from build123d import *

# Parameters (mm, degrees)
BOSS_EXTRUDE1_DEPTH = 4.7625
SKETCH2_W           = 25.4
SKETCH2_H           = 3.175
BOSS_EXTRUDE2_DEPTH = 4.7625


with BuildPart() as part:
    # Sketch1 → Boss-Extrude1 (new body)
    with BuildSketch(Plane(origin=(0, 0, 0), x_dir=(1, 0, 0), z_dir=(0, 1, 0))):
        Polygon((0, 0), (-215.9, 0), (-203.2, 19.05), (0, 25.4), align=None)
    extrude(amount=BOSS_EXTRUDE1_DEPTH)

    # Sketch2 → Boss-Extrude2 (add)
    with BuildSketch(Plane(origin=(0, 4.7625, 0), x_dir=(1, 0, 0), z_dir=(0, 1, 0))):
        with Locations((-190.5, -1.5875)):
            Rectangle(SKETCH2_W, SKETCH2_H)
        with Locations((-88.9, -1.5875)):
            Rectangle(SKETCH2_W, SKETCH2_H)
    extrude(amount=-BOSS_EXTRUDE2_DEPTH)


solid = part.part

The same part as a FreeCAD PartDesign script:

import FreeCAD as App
import Part
import Sketcher
Q = App.Units.Quantity


def add_polygon(sketch, points):
    """Adds a closed chain of lines whose ends are joined by coincident constraints."""
    first, n = sketch.GeometryCount, len(points)
    for a, b in zip(points, points[1:] + points[:1]):
        sketch.addGeometry(Part.LineSegment(App.Vector(*a, 0), App.Vector(*b, 0)), False)
    for i in range(n):
        sketch.addConstraint(Sketcher.Constraint("Coincident", first + i, 2, first + (i + 1) % n, 1))

doc = App.newDocument("Part")
params = doc.addObject("Spreadsheet::Sheet", "Params")
for row, (alias, value) in enumerate([
    ("sketch1_height", "1 in"),
    ("sketch1_width", "8.5 in"),
    ("pad1_length", "0.1875 in"),
    ("sketch2_width", "1 in"),
    ("sketch2_height", "0.125 in"),
    ("pad2_length", "0.1875 in"),
], start=1):
    params.set(f"A{row}", alias)
    params.set(f"B{row}", "=" + value)
    params.setAlias(f"B{row}", alias)

body = doc.addObject("PartDesign::Body", "Body")

sketch1 = body.newObject("Sketcher::SketchObject", "Sketch")
sketch1.AttachmentSupport = (doc.getObject("XZ_Plane"), [""])
sketch1.MapMode = "FlatFace"
add_polygon(sketch1, [(-216, 0), (0, 0), (0, -25), (-203, -19)])
sketch1.addConstraint(Sketcher.Constraint("Horizontal", 0))
sketch1.addConstraint(Sketcher.Constraint("Vertical", 1))
sketch1.addConstraint(Sketcher.Constraint("Coincident", 0, 2, -1, 1))
sketch1.addConstraint(Sketcher.Constraint("DistanceY", 1, 2, 1, 1, Q("1 in")))
sketch1.addConstraint(Sketcher.Constraint("DistanceX", 0, 1, 0, 2, Q("8.5 in")))
sketch1.addConstraint(Sketcher.Constraint("DistanceX", 2, 2, -1, 1, Q("8 in")))
sketch1.addConstraint(Sketcher.Constraint("DistanceY", 2, 2, -1, 1, Q("0.75 in")))
sketch1.setExpression("Constraints[7]", "Params.sketch1_height")
sketch1.setExpression("Constraints[8]", "Params.sketch1_width")
pad1 = body.newObject("PartDesign::Pad", "Pad")
pad1.Profile = sketch1
pad1.setExpression("Length", "Params.pad1_length")
pad1.Reversed = True

sketch2 = body.newObject("Sketcher::SketchObject", "Sketch001")
sketch2.AttachmentSupport = (doc.getObject("XZ_Plane"), [""])
sketch2.MapMode = "FlatFace"
sketch2.AttachmentOffset = App.Placement(App.Vector(0, 0, -0.1875 * 25.4), App.Rotation())
add_polygon(sketch2, [(-203.2, 0), (-203.2, 3.2), (-177.8, 3.2), (-177.8, 0)])
add_polygon(sketch2, [(-101.6, 0), (-101.6, 3.2), (-76.2, 3.2), (-76.2, 0)])
sketch2.addConstraint(Sketcher.Constraint("Vertical", 0))
sketch2.addConstraint(Sketcher.Constraint("Horizontal", 1))
sketch2.addConstraint(Sketcher.Constraint("Vertical", 2))
sketch2.addConstraint(Sketcher.Constraint("Horizontal", 3))
sketch2.addConstraint(Sketcher.Constraint("Vertical", 4))
sketch2.addConstraint(Sketcher.Constraint("Horizontal", 5))
sketch2.addConstraint(Sketcher.Constraint("Vertical", 6))
sketch2.addConstraint(Sketcher.Constraint("Horizontal", 7))
sketch2.addConstraint(Sketcher.Constraint("PointOnObject", 2, 2, -1))
sketch2.addConstraint(Sketcher.Constraint("PointOnObject", 6, 2, -1))
sketch2.addConstraint(Sketcher.Constraint("Horizontal", 1, 2, 4, 2))
sketch2.addConstraint(Sketcher.Constraint("Equal", 3, 5))
sketch2.addConstraint(Sketcher.Constraint("DistanceX", 1, 1, 1, 2, Q("1 in")))
sketch2.addConstraint(Sketcher.Constraint("DistanceX", 0, 2, -1, 1, Q("8 in")))
sketch2.addConstraint(Sketcher.Constraint("DistanceX", 4, 2, -1, 1, Q("4 in")))
sketch2.addConstraint(Sketcher.Constraint("DistanceY", 0, 1, 0, 2, Q("0.125 in")))
sketch2.setExpression("Constraints[20]", "Params.sketch2_width")
sketch2.setExpression("Constraints[23]", "Params.sketch2_height")
pad2 = body.newObject("PartDesign::Pad", "Pad001")
pad2.Profile = sketch2
pad2.setExpression("Length", "Params.pad2_length")

doc.recompute()
